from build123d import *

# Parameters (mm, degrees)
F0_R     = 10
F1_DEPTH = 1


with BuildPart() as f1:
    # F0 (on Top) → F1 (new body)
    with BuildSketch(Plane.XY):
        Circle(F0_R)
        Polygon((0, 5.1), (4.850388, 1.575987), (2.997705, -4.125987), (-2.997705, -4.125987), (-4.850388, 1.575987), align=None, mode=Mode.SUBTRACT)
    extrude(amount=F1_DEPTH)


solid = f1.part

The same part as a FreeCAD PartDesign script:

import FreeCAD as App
import Part
import Sketcher
Q = App.Units.Quantity


def add_polygon(sketch, points):
    """Adds a closed chain of lines whose ends are joined by coincident constraints."""
    first, n = sketch.GeometryCount, len(points)
    for a, b in zip(points, points[1:] + points[:1]):
        sketch.addGeometry(Part.LineSegment(App.Vector(*a, 0), App.Vector(*b, 0)), False)
    for i in range(n):
        sketch.addConstraint(Sketcher.Constraint("Coincident", first + i, 2, first + (i + 1) % n, 1))

doc = App.newDocument("Part")
body = doc.addObject("PartDesign::Body", "Body")

sketch1 = body.newObject("Sketcher::SketchObject", "Sketch")
sketch1.AttachmentSupport = (doc.getObject("XY_Plane"), [""])
sketch1.MapMode = "FlatFace"
sketch1.addGeometry(Part.Circle(App.Vector(0, 0, 0), App.Vector(0, 0, 1), 10), False)
add_polygon(sketch1, [(-5, 2), (0, 5), (5, 2), (3, -4), (-3, -4)])
sketch1.addConstraint([
    Sketcher.Constraint("Horizontal", 4),
    Sketcher.Constraint("Coincident", 0, 3, -1, 1),
    Sketcher.Constraint("Symmetric", 2, 2, 5, 2, -2),
    Sketcher.Constraint("PointOnObject", 1, 2, -2),
    Sketcher.Constraint("Equal", 2, 3),
    Sketcher.Constraint("Equal", 3, 5),
    Sketcher.Constraint("Diameter", 0, Q("20 mm")),
    Sketcher.Constraint("Angle", 1, Q("35.999999 deg")),
    Sketcher.Constraint("Angle", 3, Q("-107.999994 deg")),
    Sketcher.Constraint("DistanceY", -1, 1, 1, 2, Q("5.1 mm")),
    Sketcher.Constraint("DistanceX", 4, 2, 4, 1, Q("5.99541 mm")),
])
pad1 = body.newObject("PartDesign::Pad", "Pad")
pad1.Profile = sketch1
pad1.Length = 1

doc.recompute()
